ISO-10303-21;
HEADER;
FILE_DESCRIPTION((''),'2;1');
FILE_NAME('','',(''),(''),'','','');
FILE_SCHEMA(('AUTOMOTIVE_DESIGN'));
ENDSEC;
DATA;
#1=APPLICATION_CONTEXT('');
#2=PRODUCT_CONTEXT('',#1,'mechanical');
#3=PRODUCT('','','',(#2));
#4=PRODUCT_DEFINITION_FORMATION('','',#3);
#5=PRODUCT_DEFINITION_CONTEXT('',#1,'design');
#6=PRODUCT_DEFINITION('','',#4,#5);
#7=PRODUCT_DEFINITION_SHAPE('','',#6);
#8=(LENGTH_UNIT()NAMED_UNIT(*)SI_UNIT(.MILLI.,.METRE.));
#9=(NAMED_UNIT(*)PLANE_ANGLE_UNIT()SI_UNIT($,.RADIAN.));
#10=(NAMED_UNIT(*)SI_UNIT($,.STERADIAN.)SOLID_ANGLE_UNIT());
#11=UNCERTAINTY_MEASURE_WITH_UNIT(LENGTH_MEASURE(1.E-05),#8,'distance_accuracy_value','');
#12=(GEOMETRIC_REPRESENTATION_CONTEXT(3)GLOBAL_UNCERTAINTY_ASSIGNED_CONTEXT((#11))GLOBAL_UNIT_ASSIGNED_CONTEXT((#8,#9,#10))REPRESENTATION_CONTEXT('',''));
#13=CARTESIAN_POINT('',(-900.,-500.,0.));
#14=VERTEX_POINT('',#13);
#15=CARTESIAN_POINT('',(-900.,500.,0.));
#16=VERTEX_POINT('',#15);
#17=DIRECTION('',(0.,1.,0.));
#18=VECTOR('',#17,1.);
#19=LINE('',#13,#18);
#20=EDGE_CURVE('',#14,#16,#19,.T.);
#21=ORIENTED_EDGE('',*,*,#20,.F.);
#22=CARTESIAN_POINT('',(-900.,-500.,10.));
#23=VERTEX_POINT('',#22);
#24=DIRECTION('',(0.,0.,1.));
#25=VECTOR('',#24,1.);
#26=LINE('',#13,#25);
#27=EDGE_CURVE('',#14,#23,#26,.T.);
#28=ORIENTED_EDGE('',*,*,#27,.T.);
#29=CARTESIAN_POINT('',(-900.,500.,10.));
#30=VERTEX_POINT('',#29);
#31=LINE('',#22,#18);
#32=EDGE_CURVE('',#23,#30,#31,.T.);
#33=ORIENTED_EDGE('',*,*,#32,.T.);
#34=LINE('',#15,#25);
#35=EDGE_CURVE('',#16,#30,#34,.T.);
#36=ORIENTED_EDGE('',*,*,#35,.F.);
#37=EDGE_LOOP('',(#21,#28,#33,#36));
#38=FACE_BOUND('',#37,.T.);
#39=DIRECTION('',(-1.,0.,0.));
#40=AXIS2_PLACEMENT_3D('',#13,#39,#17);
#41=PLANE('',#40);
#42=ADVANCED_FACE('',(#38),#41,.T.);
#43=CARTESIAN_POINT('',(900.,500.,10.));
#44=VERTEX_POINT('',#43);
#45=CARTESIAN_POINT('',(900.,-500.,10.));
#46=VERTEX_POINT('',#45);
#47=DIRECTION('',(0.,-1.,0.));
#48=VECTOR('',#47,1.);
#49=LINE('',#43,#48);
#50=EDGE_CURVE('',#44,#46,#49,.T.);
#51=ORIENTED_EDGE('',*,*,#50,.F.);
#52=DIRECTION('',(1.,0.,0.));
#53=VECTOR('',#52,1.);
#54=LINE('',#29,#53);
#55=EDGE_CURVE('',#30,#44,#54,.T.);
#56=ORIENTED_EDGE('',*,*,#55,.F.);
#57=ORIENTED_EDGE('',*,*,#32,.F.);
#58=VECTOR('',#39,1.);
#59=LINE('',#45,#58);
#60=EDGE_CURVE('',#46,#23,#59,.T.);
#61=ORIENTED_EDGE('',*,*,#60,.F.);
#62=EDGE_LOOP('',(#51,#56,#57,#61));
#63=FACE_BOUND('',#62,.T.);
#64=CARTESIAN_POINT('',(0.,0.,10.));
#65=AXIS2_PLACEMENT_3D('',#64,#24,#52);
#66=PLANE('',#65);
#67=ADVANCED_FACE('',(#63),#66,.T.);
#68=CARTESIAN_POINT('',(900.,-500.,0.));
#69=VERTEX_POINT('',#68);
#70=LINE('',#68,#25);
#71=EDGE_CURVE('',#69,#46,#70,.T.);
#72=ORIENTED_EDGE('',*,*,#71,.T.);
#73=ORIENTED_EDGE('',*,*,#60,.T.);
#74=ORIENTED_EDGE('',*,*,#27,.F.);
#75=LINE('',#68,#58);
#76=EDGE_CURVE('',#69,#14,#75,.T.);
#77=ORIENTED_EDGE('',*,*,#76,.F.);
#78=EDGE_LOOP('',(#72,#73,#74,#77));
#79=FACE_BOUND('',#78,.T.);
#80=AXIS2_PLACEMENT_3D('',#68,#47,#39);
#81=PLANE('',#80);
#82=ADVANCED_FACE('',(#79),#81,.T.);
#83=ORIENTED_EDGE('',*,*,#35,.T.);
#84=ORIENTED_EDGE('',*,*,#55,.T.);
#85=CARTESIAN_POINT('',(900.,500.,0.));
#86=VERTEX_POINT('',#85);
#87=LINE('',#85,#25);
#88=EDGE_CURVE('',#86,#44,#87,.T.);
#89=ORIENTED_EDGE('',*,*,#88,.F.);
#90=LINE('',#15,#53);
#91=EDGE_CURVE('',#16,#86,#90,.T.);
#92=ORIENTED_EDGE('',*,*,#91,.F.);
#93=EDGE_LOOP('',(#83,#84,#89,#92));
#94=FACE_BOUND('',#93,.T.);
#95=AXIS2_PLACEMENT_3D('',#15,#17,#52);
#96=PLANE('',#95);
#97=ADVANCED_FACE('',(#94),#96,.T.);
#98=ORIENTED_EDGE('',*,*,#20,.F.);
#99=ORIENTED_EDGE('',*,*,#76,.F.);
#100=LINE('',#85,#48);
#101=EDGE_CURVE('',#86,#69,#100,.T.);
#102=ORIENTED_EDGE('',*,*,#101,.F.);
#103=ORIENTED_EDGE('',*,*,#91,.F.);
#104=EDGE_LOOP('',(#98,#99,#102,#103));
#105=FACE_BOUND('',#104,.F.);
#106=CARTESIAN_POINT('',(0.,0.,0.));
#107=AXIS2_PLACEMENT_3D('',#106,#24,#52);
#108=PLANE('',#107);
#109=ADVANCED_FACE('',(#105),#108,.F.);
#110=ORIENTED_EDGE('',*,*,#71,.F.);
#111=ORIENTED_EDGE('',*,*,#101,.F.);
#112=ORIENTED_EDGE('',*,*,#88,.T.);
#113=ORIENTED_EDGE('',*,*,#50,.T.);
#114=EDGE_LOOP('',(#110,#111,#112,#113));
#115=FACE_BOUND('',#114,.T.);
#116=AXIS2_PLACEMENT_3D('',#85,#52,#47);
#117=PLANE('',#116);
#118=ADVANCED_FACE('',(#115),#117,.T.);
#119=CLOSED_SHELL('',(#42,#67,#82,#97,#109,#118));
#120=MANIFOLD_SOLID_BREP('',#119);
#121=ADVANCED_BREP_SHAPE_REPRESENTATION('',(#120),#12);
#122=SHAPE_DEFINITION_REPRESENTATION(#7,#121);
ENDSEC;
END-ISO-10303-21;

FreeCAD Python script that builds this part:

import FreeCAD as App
import Part
import Sketcher
from FreeCAD import Vector
Q = App.Units.Quantity


def add_polygon(sketch, points):
    """Adds a closed chain of lines whose ends are joined by coincident constraints."""
    first, n = sketch.GeometryCount, len(points)
    for a, b in zip(points, points[1:] + points[:1]):
        sketch.addGeometry(Part.LineSegment(App.Vector(*a, 0), App.Vector(*b, 0)), False)
    for i in range(n):
        sketch.addConstraint(Sketcher.Constraint("Coincident", first + i, 2, first + (i + 1) % n, 1))

doc = App.newDocument("Part")
body = doc.addObject("PartDesign::Body", "Body")

# Sketch on XY plane
sketch1 = doc.addObject("Sketcher::SketchObject", "Sketch")
body.addObject(sketch1)
sketch1.AttachmentSupport = (doc.XY_Plane, [""])
sketch1.MapMode = "FlatFace"
add_polygon(sketch1, [(900, 500), (-900, 500), (-900, -500), (900, -500)])  # lines 0-3
sketch1.addConstraint(Sketcher.Constraint("Horizontal", 0))
sketch1.addConstraint(Sketcher.Constraint("Vertical", 1))
sketch1.addConstraint(Sketcher.Constraint("Horizontal", 2))
sketch1.addConstraint(Sketcher.Constraint("Vertical", 3))
sketch1.addConstraint(Sketcher.Constraint("Symmetric", 0, 2, 2, 2, -1, 1))
sketch1.addConstraint(Sketcher.Constraint("DistanceX", 0, 2, 0, 1, Q("1800 mm")))
sketch1.addConstraint(Sketcher.Constraint("DistanceY", 1, 2, 1, 1, Q("1000 mm")))
pad1 = doc.addObject("PartDesign::Pad", "Pad")
body.addObject(pad1)
pad1.Profile = sketch1
pad1.Length = 10

doc.recompute()
